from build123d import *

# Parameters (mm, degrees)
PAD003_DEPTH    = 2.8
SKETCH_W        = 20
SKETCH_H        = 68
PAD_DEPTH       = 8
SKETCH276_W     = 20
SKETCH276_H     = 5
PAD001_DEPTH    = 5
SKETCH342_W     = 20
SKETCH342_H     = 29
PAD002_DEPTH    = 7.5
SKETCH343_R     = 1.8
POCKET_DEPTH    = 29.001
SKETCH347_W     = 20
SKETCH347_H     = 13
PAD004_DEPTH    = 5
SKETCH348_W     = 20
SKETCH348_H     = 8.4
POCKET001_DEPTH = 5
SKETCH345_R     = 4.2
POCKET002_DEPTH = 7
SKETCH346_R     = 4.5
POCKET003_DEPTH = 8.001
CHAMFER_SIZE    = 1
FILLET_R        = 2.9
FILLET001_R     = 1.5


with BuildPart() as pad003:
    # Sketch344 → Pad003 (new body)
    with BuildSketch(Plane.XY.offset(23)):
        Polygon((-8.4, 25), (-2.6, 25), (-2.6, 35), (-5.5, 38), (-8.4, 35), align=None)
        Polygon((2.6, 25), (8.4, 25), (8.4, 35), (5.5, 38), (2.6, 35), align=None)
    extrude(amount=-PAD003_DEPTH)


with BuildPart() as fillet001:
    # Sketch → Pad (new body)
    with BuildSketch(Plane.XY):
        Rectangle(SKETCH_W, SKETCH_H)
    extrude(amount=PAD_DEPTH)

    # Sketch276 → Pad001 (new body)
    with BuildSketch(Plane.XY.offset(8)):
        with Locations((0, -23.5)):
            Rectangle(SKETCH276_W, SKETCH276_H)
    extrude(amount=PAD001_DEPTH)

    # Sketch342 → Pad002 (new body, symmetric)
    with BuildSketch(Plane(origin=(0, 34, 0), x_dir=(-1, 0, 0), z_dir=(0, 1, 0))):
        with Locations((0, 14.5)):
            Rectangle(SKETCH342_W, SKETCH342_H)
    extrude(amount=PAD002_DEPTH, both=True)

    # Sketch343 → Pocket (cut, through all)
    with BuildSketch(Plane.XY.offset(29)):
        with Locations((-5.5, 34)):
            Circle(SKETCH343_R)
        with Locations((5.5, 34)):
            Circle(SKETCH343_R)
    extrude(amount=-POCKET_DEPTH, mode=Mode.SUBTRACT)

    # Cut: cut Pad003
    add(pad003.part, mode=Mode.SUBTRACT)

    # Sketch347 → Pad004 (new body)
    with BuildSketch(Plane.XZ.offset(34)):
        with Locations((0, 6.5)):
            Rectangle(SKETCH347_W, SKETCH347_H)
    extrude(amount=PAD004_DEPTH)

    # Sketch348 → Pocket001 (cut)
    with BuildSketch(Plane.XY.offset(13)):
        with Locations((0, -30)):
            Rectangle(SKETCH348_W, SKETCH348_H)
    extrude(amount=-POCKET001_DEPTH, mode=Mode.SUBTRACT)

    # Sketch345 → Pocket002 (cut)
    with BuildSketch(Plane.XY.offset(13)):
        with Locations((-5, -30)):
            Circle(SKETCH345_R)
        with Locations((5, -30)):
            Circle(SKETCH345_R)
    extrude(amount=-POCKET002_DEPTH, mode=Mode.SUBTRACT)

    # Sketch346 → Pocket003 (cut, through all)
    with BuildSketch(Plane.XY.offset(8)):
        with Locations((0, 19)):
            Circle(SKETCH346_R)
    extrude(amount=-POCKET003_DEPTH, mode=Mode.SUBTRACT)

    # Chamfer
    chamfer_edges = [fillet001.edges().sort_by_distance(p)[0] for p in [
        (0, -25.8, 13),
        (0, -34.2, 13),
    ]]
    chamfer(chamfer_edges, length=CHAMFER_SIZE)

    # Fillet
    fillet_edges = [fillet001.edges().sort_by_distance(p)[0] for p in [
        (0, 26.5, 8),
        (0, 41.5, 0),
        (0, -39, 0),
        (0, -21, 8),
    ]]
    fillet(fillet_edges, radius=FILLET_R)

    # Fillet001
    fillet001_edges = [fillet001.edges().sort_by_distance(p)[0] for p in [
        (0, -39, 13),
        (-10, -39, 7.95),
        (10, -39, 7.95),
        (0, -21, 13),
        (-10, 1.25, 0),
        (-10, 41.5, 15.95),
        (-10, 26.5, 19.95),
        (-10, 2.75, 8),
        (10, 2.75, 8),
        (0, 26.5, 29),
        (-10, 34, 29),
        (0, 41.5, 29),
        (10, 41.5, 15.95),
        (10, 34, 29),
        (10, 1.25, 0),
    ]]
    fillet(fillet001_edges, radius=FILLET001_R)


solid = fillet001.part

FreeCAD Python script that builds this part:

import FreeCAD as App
import Part
import Sketcher

V = App.Vector


def edges_at(feature, points):
    """Names of the edges that pass closest to the given points."""
    edges = feature.Shape.Edges
    near = lambda p: min(range(len(edges)), key=lambda i: edges[i].distToShape(Part.Vertex(*p))[0])
    return sorted({f"Edge{near(p) + 1}" for p in points})


def add_polygon(sketch, points):
    """Adds a closed chain of lines whose ends are joined by coincident constraints."""
    first, n = sketch.GeometryCount, len(points)
    for a, b in zip(points, points[1:] + points[:1]):
        sketch.addGeometry(Part.LineSegment(App.Vector(*a, 0), App.Vector(*b, 0)), False)
    for i in range(n):
        sketch.addConstraint(Sketcher.Constraint("Coincident", first + i, 2, first + (i + 1) % n, 1))

doc = App.newDocument("Part")
body = doc.addObject("PartDesign::Body", "Body")
body.AllowCompound = True

# Sketch on XY plane
sketch1 = body.newObject("Sketcher::SketchObject", "Sketch")
sketch1.AttachmentSupport = (doc.getObject("XY_Plane"), [""])
sketch1.MapMode = "FlatFace"
sketch1.AttachmentOffset = App.Placement(V(0, 0, 23), App.Rotation())
add_polygon(sketch1, [(-8.4, 25), (-2.6, 25), (-2.6, 35), (-5.5, 38), (-8.4, 35)])  # lines 0-4
add_polygon(sketch1, [(2.6, 25), (8.4, 25), (8.4, 35), (5.5, 38), (2.6, 35)])  # lines 5-9
sketch1.addConstraint([
    Sketcher.Constraint("Horizontal", 0),
    Sketcher.Constraint("Vertical", 1),
    Sketcher.Constraint("Vertical", 4),
    Sketcher.Constraint("Horizontal", 5),
    Sketcher.Constraint("Vertical", 6),
    Sketcher.Constraint("Vertical", 9),
    Sketcher.Constraint("Symmetric", 4, 2, 5, 2, -2),
    Sketcher.Constraint("Symmetric", 2, 2, 7, 2, -2),
    Sketcher.Constraint("Symmetric", 1, 2, 8, 2, -2),
    Sketcher.Constraint("Parallel", 2, 7),
    Sketcher.Constraint("Parallel", 3, 8),
    Sketcher.Constraint("Horizontal", 1, 2, 3, 2),
    Sketcher.Constraint("DistanceY", 1, 1, 1, 2, 10.0),
    Sketcher.Constraint("DistanceX", 0, 1, 0, 2, 5.8),
    Sketcher.Constraint("DistanceY", -1, 1, 0, 2, 25.0),
    Sketcher.Constraint("DistanceY", -1, 1, 2, 2, 38.0),
    Sketcher.Constraint("DistanceX", 0, 2, 5, 2, 11.0),
])
pad1 = body.newObject("PartDesign::Pad", "Pad")
pad1.Profile = sketch1
pad1.Length = 2.8
pad1.Reversed = True
body2 = doc.addObject("PartDesign::Body", "Body001")

# Sketch on XY plane
sketch2 = body2.newObject("Sketcher::SketchObject", "Sketch001")
sketch2.AttachmentSupport = (doc.getObject("XY_Plane001"), [""])
sketch2.MapMode = "FlatFace"
add_polygon(sketch2, [(-10, 34), (-10, -34), (10, -34), (10, 34)])  # lines 0-3
sketch2.addConstraint([
    Sketcher.Constraint("Vertical", 0),
    Sketcher.Constraint("Horizontal", 1),
    Sketcher.Constraint("Vertical", 2),
    Sketcher.Constraint("Horizontal", 3),
    Sketcher.Constraint("Symmetric", 0, 2, 2, 2, -1, 1),
    Sketcher.Constraint("DistanceX", 1, 1, 1, 2, 20.0),
    Sketcher.Constraint("DistanceY", 0, 2, 0, 1, 68.0),
])
pad2 = body2.newObject("PartDesign::Pad", "Pad001")
pad2.Profile = sketch2
pad2.Length = 8

# Sketch on XY plane
sketch3 = body2.newObject("Sketcher::SketchObject", "Sketch002")
sketch3.AttachmentSupport = (doc.getObject("XY_Plane001"), [""])
sketch3.MapMode = "FlatFace"
sketch3.AttachmentOffset = App.Placement(V(0, 0, 8), App.Rotation())
add_polygon(sketch3, [(-10, -21), (-10, -26), (10, -26), (10, -21)])  # lines 0-3
sketch3.addConstraint([
    Sketcher.Constraint("Vertical", 0),
    Sketcher.Constraint("Horizontal", 1),
    Sketcher.Constraint("Vertical", 2),
    Sketcher.Constraint("Horizontal", 3),
    Sketcher.Constraint("DistanceX", 1, 1, 1, 2, 20.0),
    Sketcher.Constraint("DistanceY", 0, 2, 0, 1, 5.0),
    Sketcher.Constraint("DistanceX", 0, 2, -1, 1, 10.0),
    Sketcher.Constraint("DistanceY", 0, 2, -1, 1, 26.0),
])
pad3 = body2.newObject("PartDesign::Pad", "Pad002")
pad3.Profile = sketch3
pad3.Length = 5

# Sketch on XZ plane
sketch4 = body2.newObject("Sketcher::SketchObject", "Sketch003")
sketch4.AttachmentSupport = (doc.getObject("XZ_Plane001"), [""])
sketch4.MapMode = "FlatFace"
sketch4.AttachmentOffset = App.Placement(V(0, 0, -34), App.Rotation())
add_polygon(sketch4, [(10, 29), (10, 0), (-10, 0), (-10, 29)])  # lines 0-3
sketch4.addConstraint([
    Sketcher.Constraint("Vertical", 0),
    Sketcher.Constraint("Horizontal", 1),
    Sketcher.Constraint("Vertical", 2),
    Sketcher.Constraint("Horizontal", 3),
    Sketcher.Constraint("Symmetric", 0, 2, 1, 2, -1, 1),
    Sketcher.Constraint("DistanceX", 1, 2, 1, 1, 20.0),
    Sketcher.Constraint("DistanceY", 0, 2, 0, 1, 29.0),
])
pad4 = body2.newObject("PartDesign::Pad", "Pad003")
pad4.Profile = sketch4
pad4.Length = 15
pad4.Midplane = True

# Sketch on XY plane
sketch5 = body2.newObject("Sketcher::SketchObject", "Sketch004")
sketch5.AttachmentSupport = (doc.getObject("XY_Plane001"), [""])
sketch5.MapMode = "FlatFace"
sketch5.AttachmentOffset = App.Placement(V(0, 0, 29), App.Rotation())
sketch5.addGeometry([
    Part.Circle(V(-5.5, 34, 0), V(0, 0, 1), 1.8),
    Part.Circle(V(5.5, 34, 0), V(0, 0, 1), 1.8),
], False)
sketch5.addConstraint([
    Sketcher.Constraint("Equal", 0, 1),
    Sketcher.Constraint("Symmetric", 0, 3, 1, 3, -2),
    Sketcher.Constraint("Diameter", 0, 3.6),
    Sketcher.Constraint("DistanceY", -1, 1, 0, 3, 34.0),
    Sketcher.Constraint("DistanceX", 0, 3, 1, 3, 11.0),
])
pocket1 = body2.newObject("PartDesign::Pocket", "Pocket")
pocket1.Profile = sketch5
pocket1.Type = "ThroughAll"
doc.recompute()

boolean = body2.newObject("PartDesign::Boolean", "Boolean")
boolean.Type = "Cut"
boolean.addObjects([body])

# Sketch on XZ plane
sketch6 = body2.newObject("Sketcher::SketchObject", "Sketch005")
sketch6.AttachmentSupport = (doc.getObject("XZ_Plane001"), [""])
sketch6.MapMode = "FlatFace"
sketch6.AttachmentOffset = App.Placement(V(0, 0, 34), App.Rotation())
add_polygon(sketch6, [(-10, 13), (-10, 0), (10, 0), (10, 13)])  # lines 0-3
sketch6.addConstraint([
    Sketcher.Constraint("Vertical", 0),
    Sketcher.Constraint("Horizontal", 1),
    Sketcher.Constraint("Vertical", 2),
    Sketcher.Constraint("Horizontal", 3),
    Sketcher.Constraint("Symmetric", 0, 2, 1, 2, -1, 1),
    Sketcher.Constraint("DistanceX", 1, 1, 1, 2, 20.0),
    Sketcher.Constraint("DistanceY", 0, 2, 0, 1, 13.0),
])
pad5 = body2.newObject("PartDesign::Pad", "Pad004")
pad5.Profile = sketch6
pad5.Length = 5

# Sketch on XY plane
sketch7 = body2.newObject("Sketcher::SketchObject", "Sketch006")
sketch7.AttachmentSupport = (doc.getObject("XY_Plane001"), [""])
sketch7.MapMode = "FlatFace"
sketch7.AttachmentOffset = App.Placement(V(0, 0, 13), App.Rotation())
add_polygon(sketch7, [(-10, -25.8), (-10, -34.2), (10, -34.2), (10, -25.8)])  # lines 0-3
sketch7.addConstraint([
    Sketcher.Constraint("Vertical", 0),
    Sketcher.Constraint("Horizontal", 1),
    Sketcher.Constraint("Vertical", 2),
    Sketcher.Constraint("Horizontal", 3),
    Sketcher.Constraint("DistanceX", 1, 1, 1, 2, 20.0),
    Sketcher.Constraint("DistanceY", 0, 2, 0, 1, 8.4),
    Sketcher.Constraint("DistanceX", 0, 2, -1, 1, 10.0),
    Sketcher.Constraint("DistanceY", 0, 2, -1, 1, 34.2),
])
pocket2 = body2.newObject("PartDesign::Pocket", "Pocket001")
pocket2.Profile = sketch7
pocket2.Length = 5

# Sketch on XY plane
sketch8 = body2.newObject("Sketcher::SketchObject", "Sketch007")
sketch8.AttachmentSupport = (doc.getObject("XY_Plane001"), [""])
sketch8.MapMode = "FlatFace"
sketch8.AttachmentOffset = App.Placement(V(0, 0, 13), App.Rotation())
sketch8.addGeometry([
    Part.Circle(V(-5, -30, 0), V(0, 0, 1), 4.2),
    Part.Circle(V(5, -30, 0), V(0, 0, 1), 4.2),
], False)
sketch8.addConstraint([
    Sketcher.Constraint("Equal", 0, 1),
    Sketcher.Constraint("Symmetric", 0, 3, 1, 3, -2),
    Sketcher.Constraint("Diameter", 0, 8.4),
    Sketcher.Constraint("DistanceX", 0, 3, -1, 1, 5.0),
    Sketcher.Constraint("DistanceY", 0, 3, -1, 1, 30.0),
])
pocket3 = body2.newObject("PartDesign::Pocket", "Pocket002")
pocket3.Profile = sketch8
pocket3.Length = 7

# Sketch on XY plane
sketch9 = body2.newObject("Sketcher::SketchObject", "Sketch008")
sketch9.AttachmentSupport = (doc.getObject("XY_Plane001"), [""])
sketch9.MapMode = "FlatFace"
sketch9.AttachmentOffset = App.Placement(V(0, 0, 8), App.Rotation())
sketch9.addGeometry(Part.Circle(V(0, 19, 0), V(0, 0, 1), 4.5), False)
sketch9.addConstraint([
    Sketcher.Constraint("PointOnObject", 0, 3, -2),
    Sketcher.Constraint("Diameter", 0, 9.0),
    Sketcher.Constraint("DistanceY", -1, 1, 0, 3, 19.0),
])
pocket4 = body2.newObject("PartDesign::Pocket", "Pocket003")
pocket4.Profile = sketch9
pocket4.Type = "ThroughAll"
doc.recompute()

chamfer = body2.newObject("PartDesign::Chamfer", "Chamfer")
chamfer.Base = (pocket4, edges_at(pocket4, [(0, -25.8, 13), (0, -34.2, 13)]))
chamfer.Size = 1
doc.recompute()

fillet = body2.newObject("PartDesign::Fillet", "Fillet")
fillet.Base = (chamfer, edges_at(chamfer, [
    (0, 26.5, 8),
    (0, 41.5, 0),
    (0, -39, 0),
    (0, -21, 8),
]))
fillet.Radius = 2.9
doc.recompute()

fillet2 = body2.newObject("PartDesign::Fillet", "Fillet001")
fillet2.Base = (fillet, edges_at(fillet, [
    (0, -39, 13),
    (-10, -39, 7.95),
    (10, -39, 7.95),
    (0, -21, 13),
    (-10, 1.25, 0),
    (-10, 41.5, 15.95),
    (-10, 26.5, 19.95),
    (-10, 2.75, 8),
    (10, 2.75, 8),
    (0, 26.5, 29),
    (-10, 34, 29),
    (0, 41.5, 29),
    (10, 41.5, 15.95),
    (10, 34, 29),
    (10, 1.25, 0),
]))
fillet2.Radius = 1.5

doc.recompute()
